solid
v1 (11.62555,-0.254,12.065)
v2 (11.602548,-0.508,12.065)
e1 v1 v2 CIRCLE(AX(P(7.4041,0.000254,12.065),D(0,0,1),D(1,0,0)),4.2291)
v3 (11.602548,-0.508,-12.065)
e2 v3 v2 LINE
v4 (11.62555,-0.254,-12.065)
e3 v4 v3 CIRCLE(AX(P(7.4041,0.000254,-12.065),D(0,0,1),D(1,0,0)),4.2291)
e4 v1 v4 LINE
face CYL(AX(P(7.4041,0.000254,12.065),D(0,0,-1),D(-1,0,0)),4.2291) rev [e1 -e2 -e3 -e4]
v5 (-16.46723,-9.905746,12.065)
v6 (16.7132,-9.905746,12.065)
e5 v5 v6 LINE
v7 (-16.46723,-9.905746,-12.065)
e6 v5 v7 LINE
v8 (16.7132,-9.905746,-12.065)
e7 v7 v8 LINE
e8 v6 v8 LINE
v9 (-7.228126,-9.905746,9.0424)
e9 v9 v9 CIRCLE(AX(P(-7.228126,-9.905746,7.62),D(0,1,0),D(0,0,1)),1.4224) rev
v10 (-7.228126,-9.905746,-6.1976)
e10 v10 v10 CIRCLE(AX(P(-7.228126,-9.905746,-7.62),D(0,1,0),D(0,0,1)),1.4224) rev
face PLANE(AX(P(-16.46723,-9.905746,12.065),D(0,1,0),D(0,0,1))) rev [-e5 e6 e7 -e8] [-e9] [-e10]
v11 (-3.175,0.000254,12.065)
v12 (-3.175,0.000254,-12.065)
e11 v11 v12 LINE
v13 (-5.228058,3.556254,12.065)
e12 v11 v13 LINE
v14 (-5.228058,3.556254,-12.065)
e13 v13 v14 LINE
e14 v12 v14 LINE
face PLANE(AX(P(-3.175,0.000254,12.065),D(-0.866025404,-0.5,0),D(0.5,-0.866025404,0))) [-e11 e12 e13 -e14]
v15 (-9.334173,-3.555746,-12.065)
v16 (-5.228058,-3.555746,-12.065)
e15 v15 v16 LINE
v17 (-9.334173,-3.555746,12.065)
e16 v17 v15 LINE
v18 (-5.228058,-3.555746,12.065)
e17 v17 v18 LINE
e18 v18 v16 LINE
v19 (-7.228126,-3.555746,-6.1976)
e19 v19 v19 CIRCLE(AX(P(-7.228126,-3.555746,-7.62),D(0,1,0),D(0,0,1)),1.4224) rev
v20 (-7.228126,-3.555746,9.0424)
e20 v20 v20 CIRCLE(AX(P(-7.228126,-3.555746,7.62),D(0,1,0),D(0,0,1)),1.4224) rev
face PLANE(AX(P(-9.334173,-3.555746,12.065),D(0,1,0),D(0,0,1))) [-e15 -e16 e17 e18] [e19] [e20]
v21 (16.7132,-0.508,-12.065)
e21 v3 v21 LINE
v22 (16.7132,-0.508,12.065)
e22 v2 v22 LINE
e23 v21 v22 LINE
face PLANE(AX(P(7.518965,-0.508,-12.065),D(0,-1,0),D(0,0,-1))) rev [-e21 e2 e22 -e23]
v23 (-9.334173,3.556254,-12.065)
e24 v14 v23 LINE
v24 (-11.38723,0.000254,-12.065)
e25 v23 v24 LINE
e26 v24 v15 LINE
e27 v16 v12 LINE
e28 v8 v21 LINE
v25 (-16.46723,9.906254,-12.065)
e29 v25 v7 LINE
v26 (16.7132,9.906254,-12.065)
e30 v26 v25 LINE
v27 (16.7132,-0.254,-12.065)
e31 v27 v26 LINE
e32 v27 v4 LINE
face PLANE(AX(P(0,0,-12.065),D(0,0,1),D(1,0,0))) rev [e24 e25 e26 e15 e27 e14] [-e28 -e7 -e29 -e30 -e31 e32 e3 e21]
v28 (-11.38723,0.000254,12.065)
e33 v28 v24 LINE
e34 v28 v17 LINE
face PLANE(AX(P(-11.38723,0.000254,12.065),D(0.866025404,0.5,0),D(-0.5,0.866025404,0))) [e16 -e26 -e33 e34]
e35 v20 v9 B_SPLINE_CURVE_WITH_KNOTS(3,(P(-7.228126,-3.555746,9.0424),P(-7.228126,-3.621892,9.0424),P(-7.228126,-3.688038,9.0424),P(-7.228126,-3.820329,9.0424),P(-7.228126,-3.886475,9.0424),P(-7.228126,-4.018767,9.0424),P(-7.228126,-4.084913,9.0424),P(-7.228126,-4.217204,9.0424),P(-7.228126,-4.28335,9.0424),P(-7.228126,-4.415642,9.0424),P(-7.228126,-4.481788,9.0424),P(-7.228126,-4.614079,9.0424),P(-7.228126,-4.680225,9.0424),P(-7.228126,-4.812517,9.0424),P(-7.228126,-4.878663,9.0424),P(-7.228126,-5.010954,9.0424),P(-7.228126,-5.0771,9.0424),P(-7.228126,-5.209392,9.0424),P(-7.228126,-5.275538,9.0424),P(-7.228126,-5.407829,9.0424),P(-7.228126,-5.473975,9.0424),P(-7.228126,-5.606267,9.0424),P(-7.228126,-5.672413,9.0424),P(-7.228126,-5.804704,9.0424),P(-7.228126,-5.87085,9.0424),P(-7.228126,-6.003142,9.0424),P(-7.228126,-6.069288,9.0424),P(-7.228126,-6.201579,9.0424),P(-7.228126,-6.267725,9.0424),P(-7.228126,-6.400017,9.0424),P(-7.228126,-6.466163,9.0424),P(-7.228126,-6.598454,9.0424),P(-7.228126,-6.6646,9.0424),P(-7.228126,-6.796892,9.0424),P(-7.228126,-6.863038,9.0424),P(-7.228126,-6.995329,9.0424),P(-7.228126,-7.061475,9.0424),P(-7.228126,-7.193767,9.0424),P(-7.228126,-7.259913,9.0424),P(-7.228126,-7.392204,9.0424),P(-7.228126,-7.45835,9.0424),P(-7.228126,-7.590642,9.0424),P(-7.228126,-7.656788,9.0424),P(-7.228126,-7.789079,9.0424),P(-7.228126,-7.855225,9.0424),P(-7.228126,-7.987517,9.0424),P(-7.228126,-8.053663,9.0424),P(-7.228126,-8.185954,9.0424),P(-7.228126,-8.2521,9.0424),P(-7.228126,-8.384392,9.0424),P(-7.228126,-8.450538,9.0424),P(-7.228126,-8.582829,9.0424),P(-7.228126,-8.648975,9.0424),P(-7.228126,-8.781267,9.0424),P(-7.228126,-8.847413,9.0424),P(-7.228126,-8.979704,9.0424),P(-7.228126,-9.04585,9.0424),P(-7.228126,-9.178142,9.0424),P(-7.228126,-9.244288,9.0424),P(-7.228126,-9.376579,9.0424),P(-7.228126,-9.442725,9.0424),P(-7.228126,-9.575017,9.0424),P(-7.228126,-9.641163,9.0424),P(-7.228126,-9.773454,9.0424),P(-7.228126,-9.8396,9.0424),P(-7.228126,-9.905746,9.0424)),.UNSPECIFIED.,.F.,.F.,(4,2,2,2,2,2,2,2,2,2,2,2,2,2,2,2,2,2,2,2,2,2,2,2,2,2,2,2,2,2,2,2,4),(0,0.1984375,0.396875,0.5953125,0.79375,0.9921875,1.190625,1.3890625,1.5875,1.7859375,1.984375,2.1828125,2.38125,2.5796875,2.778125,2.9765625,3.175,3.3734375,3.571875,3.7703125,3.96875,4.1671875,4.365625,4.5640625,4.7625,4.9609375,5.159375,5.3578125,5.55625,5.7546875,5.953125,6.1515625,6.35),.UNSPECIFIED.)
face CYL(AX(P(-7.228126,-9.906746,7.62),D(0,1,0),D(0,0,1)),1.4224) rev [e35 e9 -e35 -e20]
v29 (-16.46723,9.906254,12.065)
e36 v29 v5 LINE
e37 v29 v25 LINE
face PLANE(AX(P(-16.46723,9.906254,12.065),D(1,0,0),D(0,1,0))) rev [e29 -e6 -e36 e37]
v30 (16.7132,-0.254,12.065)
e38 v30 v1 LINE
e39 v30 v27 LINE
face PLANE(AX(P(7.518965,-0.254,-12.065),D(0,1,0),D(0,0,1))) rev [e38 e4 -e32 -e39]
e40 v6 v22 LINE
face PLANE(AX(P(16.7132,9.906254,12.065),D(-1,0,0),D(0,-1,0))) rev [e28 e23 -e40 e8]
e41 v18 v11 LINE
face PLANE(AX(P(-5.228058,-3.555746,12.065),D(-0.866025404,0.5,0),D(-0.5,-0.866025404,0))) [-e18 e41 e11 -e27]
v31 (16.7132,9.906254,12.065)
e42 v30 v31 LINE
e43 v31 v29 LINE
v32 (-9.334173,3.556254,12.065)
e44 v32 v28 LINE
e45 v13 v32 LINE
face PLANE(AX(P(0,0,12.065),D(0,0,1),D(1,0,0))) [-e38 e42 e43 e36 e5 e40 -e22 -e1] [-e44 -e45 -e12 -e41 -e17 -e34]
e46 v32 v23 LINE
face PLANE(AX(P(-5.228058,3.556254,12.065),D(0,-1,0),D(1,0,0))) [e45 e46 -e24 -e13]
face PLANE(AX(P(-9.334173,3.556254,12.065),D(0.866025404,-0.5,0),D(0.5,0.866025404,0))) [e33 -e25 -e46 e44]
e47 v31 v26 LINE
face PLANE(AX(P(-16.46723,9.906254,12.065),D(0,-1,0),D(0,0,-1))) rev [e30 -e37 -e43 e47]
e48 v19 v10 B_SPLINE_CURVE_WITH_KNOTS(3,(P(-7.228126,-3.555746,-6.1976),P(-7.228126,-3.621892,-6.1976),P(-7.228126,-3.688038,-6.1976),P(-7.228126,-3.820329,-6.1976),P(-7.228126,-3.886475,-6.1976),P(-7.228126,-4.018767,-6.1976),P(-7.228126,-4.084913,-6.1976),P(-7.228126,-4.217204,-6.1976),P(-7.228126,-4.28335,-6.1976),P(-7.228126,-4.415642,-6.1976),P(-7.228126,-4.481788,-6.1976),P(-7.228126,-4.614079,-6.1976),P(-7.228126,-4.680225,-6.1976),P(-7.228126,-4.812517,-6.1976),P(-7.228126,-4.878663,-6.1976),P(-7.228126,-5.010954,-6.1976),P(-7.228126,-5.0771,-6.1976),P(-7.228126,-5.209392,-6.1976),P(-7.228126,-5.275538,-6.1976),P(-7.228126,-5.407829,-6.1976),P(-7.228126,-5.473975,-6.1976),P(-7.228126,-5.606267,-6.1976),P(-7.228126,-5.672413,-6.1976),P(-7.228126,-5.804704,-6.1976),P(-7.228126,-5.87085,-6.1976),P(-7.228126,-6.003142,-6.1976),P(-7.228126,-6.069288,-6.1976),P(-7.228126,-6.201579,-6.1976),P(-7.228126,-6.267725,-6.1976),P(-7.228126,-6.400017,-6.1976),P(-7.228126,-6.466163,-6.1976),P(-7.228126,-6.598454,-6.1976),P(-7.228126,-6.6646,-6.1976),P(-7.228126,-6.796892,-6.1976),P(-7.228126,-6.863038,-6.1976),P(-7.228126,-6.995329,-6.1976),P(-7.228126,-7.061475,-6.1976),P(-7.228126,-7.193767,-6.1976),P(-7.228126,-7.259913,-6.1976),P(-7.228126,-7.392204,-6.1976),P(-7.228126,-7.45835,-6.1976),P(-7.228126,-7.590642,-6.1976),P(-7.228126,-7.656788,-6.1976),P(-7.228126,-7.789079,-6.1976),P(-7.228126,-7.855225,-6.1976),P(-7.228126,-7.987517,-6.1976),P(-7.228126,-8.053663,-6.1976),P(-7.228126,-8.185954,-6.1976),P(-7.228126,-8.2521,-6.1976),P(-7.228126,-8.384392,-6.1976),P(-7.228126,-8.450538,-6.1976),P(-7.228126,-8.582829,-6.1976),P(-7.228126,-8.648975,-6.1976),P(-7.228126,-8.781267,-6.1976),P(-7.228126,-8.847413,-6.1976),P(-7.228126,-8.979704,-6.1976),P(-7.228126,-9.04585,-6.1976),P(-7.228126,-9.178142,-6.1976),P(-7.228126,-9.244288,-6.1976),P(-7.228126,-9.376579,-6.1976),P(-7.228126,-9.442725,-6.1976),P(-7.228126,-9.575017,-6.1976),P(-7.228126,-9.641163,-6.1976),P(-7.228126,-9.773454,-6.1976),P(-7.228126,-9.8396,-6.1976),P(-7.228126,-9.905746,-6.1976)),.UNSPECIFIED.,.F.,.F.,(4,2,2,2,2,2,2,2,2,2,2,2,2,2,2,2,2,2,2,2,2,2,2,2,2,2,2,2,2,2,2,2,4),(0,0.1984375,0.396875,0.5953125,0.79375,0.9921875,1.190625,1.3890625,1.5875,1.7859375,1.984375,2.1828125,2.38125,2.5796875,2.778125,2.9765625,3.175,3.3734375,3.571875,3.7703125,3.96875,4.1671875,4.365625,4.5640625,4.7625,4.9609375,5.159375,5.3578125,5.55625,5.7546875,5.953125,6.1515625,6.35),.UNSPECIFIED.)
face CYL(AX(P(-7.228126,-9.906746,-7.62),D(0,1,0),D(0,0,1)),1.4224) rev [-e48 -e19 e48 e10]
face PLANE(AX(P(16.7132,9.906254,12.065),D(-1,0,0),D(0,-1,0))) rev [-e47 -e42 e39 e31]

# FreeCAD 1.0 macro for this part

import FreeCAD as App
import Part
import Sketcher

V = App.Vector
Q = App.Units.Quantity


def add_polygon(sketch, points):
    """Adds a closed chain of lines whose ends are joined by coincident constraints."""
    first, n = sketch.GeometryCount, len(points)
    for a, b in zip(points, points[1:] + points[:1]):
        sketch.addGeometry(Part.LineSegment(App.Vector(*a, 0), App.Vector(*b, 0)), False)
    for i in range(n):
        sketch.addConstraint(Sketcher.Constraint("Coincident", first + i, 2, first + (i + 1) % n, 1))

doc = App.newDocument("Part")
body = doc.addObject("PartDesign::Body", "Body")

sketch1 = body.newObject("Sketcher::SketchObject", "Sketch")
sketch1.AttachmentSupport = (doc.getObject("XY_Plane"), [""])
sketch1.MapMode = "FlatFace"
add_polygon(sketch1, [(-16.5, 9.9), (-16.5, -9.9), (16.7, -9.9), (16.7, 9.9)])
add_polygon(sketch1, [(-9.3, -3.6), (-11.4, 0), (-9.3, 3.6), (-5.2, 3.6), (-3.2, 0), (-5.2, -3.6)])
sketch1.addGeometry(Part.Circle(V(7.4, 0, 0), V(0, 0, 1), 4.2), False)
sketch1.addConstraint([
    Sketcher.Constraint("Vertical", 0),
    Sketcher.Constraint("Horizontal", 1),
    Sketcher.Constraint("Vertical", 2),
    Sketcher.Constraint("Horizontal", 3),
    Sketcher.Constraint("Horizontal", 6),
    Sketcher.Constraint("Horizontal", 9),
    Sketcher.Constraint("Parallel", 4, 7),
    Sketcher.Constraint("Parallel", 5, 8),
    Sketcher.Constraint("Horizontal", 10, 3, 4, 2),
    Sketcher.Constraint("Horizontal", 4, 2, 7, 2),
    Sketcher.Constraint("Vertical", 6, 2, 8, 2),
    Sketcher.Constraint("Vertical", 5, 2, 9, 2),
    Sketcher.Constraint("Diameter", 10, Q("0.333 in")),
    Sketcher.Constraint("Angle", 4, Q("120 deg")),
    Sketcher.Constraint("DistanceY", 0, 2, 0, 1, Q("0.78 in")),
    Sketcher.Constraint("DistanceX", 0, 2, 4, 2, Q("0.2 in")),
    Sketcher.Constraint("DistanceY", 0, 2, 10, 3, Q("0.39 in")),
    Sketcher.Constraint("DistanceY", 4, 2, 5, 2, Q("0.14 in")),
    Sketcher.Constraint("DistanceX", -1, 1, 1, 2, Q("0.658 in")),
    Sketcher.Constraint("DistanceX", 7, 2, -1, 1, Q("0.125 in")),
    Sketcher.Constraint("DistanceX", -1, 1, 10, 3, Q("0.2915 in")),
    Sketcher.Constraint("DistanceX", 1, 1, 1, 2, Q("33.18043 mm")),
    Sketcher.Constraint("DistanceY", -1, 1, 10, 3, Q("0.000254 mm")),
])
pad1 = body.newObject("PartDesign::Pad", "Pad")
pad1.Profile = sketch1
pad1.Length = Q("0.95 in")
pad1.Midplane = True

sketch2 = body.newObject("Sketcher::SketchObject", "Sketch001")
sketch2.AttachmentSupport = (doc.getObject("XZ_Plane"), [""])
sketch2.MapMode = "FlatFace"
sketch2.addGeometry(Part.Circle(V(-7.2, 7.6, 0), V(0, 0, 1), 1.4), False)
sketch2.addConstraint([
    Sketcher.Constraint("Diameter", 0, Q("0.112 in")),
    Sketcher.Constraint("DistanceY", -1, 1, 0, 3, Q("0.3 in")),
    Sketcher.Constraint("DistanceX", 0, 3, -1, 1, Q("7.228126 mm")),
])
pocket1 = body.newObject("PartDesign::Pocket", "Pocket")
pocket1.Profile = sketch2
pocket1.Length = 9.905746
pocket1.Reversed = True

sketch3 = body.newObject("Sketcher::SketchObject", "Sketch002")
sketch3.AttachmentSupport = (doc.getObject("XZ_Plane"), [""])
sketch3.MapMode = "FlatFace"
sketch3.addGeometry(Part.Circle(V(-7.2, -7.6, 0), V(0, 0, 1), 1.4), False)
sketch3.addConstraint([
    Sketcher.Constraint("Diameter", 0, Q("0.112 in")),
    Sketcher.Constraint("DistanceY", 0, 3, -1, 1, Q("0.3 in")),
    Sketcher.Constraint("DistanceX", 0, 3, -1, 1, Q("7.228126 mm")),
])
pocket2 = body.newObject("PartDesign::Pocket", "Pocket001")
pocket2.Profile = sketch3
pocket2.Length = 9.905746
pocket2.Reversed = True

sketch4 = body.newObject("Sketcher::SketchObject", "Sketch003")
sketch4.AttachmentSupport = (doc.getObject("XY_Plane"), [""])
sketch4.MapMode = "FlatFace"
add_polygon(sketch4, [(7.52, -0.25), (7.52, -0.51), (20.22, -0.51), (20.22, -0.25)])
sketch4.addConstraint([
    Sketcher.Constraint("Vertical", 0),
    Sketcher.Constraint("Horizontal", 1),
    Sketcher.Constraint("Vertical", 2),
    Sketcher.Constraint("Horizontal", 3),
    Sketcher.Constraint("DistanceX", 1, 1, 1, 2, Q("0.5 in")),
    Sketcher.Constraint("DistanceY", 0, 2, 0, 1, Q("0.01 in")),
    Sketcher.Constraint("DistanceY", 0, 2, -1, 1, Q("0.02 in")),
    Sketcher.Constraint("DistanceX", -1, 1, 0, 2, Q("7.518965 mm")),
])
pocket3 = body.newObject("PartDesign::Pocket", "Pocket002")
pocket3.Profile = sketch4
pocket3.Type = "ThroughAll"
pocket3.Midplane = True

doc.recompute()
